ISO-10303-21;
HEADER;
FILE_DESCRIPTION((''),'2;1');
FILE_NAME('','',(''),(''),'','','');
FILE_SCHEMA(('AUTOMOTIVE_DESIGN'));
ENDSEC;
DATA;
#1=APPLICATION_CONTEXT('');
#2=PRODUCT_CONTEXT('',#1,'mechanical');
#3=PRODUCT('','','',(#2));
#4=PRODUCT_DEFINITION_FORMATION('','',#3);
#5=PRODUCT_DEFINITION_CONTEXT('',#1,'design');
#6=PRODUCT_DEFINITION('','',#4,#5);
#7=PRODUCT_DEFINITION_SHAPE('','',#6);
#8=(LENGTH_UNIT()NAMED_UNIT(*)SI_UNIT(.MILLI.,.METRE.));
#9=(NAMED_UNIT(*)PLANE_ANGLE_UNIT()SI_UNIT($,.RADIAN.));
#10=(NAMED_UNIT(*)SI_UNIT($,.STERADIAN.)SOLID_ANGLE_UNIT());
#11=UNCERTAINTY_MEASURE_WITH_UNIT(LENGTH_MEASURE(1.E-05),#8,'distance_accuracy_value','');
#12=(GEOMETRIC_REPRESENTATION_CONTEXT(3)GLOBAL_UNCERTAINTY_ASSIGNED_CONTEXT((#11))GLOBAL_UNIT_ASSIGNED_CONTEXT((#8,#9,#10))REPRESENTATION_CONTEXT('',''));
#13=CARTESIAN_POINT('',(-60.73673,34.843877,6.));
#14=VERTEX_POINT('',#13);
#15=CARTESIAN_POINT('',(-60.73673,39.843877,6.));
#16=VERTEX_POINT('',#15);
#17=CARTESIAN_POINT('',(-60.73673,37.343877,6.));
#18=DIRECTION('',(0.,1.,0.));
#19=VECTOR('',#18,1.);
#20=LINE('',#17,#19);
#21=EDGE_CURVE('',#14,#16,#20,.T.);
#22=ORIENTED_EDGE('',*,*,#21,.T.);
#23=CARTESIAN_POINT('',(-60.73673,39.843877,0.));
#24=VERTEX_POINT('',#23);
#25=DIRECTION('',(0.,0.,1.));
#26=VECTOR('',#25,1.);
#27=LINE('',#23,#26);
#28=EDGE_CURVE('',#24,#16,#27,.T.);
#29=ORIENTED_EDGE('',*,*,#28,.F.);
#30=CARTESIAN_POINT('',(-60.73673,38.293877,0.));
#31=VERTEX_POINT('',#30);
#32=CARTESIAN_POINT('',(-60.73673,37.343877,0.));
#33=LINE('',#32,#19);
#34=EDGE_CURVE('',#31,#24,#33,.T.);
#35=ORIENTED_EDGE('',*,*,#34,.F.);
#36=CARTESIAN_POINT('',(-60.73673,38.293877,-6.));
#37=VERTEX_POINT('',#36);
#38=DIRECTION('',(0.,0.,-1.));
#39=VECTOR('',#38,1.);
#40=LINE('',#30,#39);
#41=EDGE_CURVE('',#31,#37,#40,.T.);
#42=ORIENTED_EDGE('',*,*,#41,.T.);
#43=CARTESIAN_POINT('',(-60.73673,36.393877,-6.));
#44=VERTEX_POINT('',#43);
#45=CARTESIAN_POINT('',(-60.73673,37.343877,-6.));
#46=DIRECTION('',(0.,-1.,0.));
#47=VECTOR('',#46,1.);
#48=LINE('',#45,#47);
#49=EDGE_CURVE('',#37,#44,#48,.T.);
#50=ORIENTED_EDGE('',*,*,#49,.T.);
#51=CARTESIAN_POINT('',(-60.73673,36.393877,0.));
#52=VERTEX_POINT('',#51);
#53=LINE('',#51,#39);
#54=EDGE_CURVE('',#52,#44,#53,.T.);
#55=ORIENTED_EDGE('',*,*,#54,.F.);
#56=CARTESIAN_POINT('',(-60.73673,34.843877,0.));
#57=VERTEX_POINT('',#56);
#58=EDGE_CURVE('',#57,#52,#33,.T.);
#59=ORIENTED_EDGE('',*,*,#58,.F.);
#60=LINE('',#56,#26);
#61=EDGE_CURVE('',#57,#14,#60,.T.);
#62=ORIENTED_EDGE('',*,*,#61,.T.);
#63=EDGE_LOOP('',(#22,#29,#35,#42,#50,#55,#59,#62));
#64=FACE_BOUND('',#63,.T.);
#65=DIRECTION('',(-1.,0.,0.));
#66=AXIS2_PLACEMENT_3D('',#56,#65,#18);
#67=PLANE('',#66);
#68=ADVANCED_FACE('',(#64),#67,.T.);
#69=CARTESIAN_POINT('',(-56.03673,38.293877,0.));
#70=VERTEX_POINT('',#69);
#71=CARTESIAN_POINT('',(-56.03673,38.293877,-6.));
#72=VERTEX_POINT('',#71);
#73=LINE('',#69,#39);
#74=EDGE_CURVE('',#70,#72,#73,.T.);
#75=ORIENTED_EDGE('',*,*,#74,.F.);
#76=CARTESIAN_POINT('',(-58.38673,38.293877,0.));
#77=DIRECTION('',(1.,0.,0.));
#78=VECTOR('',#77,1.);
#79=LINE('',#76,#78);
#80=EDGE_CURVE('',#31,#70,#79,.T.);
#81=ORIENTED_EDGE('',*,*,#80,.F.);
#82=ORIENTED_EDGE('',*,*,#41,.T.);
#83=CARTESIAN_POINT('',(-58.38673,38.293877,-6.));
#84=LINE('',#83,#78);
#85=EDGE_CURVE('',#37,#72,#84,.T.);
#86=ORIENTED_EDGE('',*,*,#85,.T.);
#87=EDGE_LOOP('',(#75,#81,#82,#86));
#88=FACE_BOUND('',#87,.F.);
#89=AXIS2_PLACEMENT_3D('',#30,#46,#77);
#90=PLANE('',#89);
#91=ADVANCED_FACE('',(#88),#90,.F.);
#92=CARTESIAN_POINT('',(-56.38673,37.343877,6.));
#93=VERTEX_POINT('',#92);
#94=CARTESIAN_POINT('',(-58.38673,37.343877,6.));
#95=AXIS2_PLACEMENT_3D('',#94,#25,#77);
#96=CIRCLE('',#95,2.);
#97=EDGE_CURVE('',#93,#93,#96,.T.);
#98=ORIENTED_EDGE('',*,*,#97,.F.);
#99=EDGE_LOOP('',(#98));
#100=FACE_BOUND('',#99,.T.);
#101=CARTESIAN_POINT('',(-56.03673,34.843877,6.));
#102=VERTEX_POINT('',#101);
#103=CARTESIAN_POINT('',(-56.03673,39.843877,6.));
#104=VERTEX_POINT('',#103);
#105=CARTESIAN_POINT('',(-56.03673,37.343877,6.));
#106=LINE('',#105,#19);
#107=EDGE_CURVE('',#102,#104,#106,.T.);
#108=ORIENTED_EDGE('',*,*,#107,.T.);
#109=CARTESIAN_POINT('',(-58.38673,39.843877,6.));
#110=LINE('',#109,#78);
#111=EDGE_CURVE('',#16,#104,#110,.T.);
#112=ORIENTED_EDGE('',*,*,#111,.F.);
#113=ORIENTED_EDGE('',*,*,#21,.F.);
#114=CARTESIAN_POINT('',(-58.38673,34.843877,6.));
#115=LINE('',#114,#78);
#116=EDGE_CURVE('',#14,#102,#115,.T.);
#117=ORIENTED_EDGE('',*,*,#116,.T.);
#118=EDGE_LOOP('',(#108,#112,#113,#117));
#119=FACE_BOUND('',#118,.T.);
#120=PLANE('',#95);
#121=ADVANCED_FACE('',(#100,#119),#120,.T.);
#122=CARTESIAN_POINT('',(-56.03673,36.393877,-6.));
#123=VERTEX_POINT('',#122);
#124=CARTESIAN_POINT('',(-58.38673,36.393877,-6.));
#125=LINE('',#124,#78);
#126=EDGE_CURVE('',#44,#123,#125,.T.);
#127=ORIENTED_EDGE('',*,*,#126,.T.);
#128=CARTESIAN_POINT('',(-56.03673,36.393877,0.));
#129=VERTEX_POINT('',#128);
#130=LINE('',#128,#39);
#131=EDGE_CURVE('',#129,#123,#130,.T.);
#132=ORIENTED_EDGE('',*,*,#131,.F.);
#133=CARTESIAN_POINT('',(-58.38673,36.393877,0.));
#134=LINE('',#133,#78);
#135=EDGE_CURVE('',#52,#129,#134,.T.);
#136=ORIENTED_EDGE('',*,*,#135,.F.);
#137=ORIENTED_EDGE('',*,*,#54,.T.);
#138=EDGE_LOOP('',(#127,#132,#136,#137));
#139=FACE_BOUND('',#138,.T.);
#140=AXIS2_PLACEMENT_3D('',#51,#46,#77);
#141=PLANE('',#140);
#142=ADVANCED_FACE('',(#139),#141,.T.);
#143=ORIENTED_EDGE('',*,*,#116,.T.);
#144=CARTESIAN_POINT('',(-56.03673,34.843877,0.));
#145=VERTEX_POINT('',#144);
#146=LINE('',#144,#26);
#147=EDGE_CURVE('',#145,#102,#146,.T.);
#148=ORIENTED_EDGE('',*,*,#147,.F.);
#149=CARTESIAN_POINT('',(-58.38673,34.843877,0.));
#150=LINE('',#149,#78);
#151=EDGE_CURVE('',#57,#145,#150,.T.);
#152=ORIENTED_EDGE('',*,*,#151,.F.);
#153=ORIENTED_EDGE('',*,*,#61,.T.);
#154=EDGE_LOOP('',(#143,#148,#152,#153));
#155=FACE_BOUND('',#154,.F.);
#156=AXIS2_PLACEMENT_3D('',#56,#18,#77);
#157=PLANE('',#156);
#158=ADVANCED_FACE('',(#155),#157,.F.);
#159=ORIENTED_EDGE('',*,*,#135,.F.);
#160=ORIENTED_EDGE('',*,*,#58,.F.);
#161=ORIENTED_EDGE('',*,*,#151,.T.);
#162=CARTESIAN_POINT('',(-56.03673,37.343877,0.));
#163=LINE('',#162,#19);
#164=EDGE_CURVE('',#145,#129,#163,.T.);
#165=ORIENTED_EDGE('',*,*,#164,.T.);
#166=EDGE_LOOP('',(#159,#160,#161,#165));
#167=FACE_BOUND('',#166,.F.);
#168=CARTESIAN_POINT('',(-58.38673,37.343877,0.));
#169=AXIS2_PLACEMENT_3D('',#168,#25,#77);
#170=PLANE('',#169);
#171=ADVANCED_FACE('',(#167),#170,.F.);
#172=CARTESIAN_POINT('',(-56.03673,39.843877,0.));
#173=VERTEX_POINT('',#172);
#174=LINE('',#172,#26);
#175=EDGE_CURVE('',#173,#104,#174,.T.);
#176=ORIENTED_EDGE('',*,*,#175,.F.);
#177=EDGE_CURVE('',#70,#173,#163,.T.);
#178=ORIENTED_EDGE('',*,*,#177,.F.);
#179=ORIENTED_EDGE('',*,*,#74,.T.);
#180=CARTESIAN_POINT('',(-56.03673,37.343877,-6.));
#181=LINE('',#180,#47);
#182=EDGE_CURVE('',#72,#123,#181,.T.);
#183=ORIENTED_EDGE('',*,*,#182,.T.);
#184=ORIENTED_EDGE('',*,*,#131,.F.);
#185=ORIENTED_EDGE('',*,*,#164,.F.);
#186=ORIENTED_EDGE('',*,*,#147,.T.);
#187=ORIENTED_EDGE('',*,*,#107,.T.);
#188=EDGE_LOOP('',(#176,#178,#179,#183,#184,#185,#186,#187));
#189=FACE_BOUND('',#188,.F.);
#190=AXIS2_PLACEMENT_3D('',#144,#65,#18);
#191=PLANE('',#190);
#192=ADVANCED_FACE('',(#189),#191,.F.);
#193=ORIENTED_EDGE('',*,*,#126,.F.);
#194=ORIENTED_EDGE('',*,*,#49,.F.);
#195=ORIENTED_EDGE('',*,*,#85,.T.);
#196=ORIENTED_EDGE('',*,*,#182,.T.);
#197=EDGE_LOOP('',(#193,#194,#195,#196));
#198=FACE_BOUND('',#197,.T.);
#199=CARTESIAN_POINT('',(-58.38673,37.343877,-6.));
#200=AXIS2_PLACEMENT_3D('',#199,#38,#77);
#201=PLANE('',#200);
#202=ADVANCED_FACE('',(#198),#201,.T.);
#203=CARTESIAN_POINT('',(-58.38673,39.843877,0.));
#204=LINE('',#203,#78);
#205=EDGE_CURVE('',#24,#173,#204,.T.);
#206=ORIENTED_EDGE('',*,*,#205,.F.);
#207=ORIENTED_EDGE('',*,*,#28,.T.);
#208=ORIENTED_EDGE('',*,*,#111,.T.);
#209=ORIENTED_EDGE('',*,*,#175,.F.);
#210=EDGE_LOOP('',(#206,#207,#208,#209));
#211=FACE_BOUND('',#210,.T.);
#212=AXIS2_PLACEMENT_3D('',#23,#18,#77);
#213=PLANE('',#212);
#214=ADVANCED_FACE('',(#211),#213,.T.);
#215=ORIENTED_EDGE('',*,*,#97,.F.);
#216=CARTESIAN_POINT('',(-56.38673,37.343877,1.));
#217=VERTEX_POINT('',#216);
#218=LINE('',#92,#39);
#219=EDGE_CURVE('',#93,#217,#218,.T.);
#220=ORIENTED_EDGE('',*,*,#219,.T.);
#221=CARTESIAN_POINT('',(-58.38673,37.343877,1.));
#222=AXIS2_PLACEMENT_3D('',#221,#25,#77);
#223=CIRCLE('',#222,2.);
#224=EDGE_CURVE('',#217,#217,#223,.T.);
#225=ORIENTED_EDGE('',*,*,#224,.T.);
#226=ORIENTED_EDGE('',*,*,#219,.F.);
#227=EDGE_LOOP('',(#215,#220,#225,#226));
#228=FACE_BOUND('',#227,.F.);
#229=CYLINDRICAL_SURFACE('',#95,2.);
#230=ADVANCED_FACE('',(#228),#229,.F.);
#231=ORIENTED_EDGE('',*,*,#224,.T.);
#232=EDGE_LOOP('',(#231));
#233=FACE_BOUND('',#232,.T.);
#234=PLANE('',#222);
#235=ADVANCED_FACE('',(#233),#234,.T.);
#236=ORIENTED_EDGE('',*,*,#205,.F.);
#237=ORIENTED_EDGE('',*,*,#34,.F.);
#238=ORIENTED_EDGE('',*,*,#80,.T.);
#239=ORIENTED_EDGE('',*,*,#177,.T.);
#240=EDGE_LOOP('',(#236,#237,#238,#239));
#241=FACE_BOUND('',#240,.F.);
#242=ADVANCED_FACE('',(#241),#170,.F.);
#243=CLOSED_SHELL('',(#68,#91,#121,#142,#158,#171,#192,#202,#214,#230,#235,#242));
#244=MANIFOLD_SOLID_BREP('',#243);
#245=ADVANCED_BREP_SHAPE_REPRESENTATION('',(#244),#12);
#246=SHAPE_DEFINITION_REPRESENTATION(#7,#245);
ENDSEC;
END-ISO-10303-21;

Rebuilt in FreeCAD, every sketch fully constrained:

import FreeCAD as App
import Part
import Sketcher


def add_polygon(sketch, points):
    """Adds a closed chain of lines whose ends are joined by coincident constraints."""
    first, n = sketch.GeometryCount, len(points)
    for a, b in zip(points, points[1:] + points[:1]):
        sketch.addGeometry(Part.LineSegment(App.Vector(*a, 0), App.Vector(*b, 0)), False)
    for i in range(n):
        sketch.addConstraint(Sketcher.Constraint("Coincident", first + i, 2, first + (i + 1) % n, 1))

doc = App.newDocument("Part")
body = doc.addObject("PartDesign::Body", "Body")

sketch1 = body.newObject("Sketcher::SketchObject", "Sketch")
sketch1.AttachmentSupport = (doc.getObject("XY_Plane"), [""])
sketch1.MapMode = "FlatFace"
add_polygon(sketch1, [(-60.7, 39.8), (-60.7, 34.8), (-56, 34.8), (-56, 39.8)])
sketch1.addConstraint(Sketcher.Constraint("Vertical", 0))
sketch1.addConstraint(Sketcher.Constraint("Horizontal", 1))
sketch1.addConstraint(Sketcher.Constraint("Vertical", 2))
sketch1.addConstraint(Sketcher.Constraint("Horizontal", 3))
sketch1.addConstraint(Sketcher.Constraint("DistanceY", 0, 2, 0, 1, 5.0))
sketch1.addConstraint(Sketcher.Constraint("DistanceX", 1, 1, 1, 2, 4.7))
sketch1.addConstraint(Sketcher.Constraint("DistanceX", 0, 2, -1, 1, 60.73673))
sketch1.addConstraint(Sketcher.Constraint("DistanceY", -1, 1, 0, 2, 34.843877))
pad1 = body.newObject("PartDesign::Pad", "Pad")
pad1.Profile = sketch1
pad1.Length = 6

sketch2 = body.newObject("Sketcher::SketchObject", "Sketch001")
sketch2.AttachmentSupport = (doc.getObject("XY_Plane"), [""])
sketch2.MapMode = "FlatFace"
sketch2.AttachmentOffset = App.Placement(App.Vector(0, 0, 6), App.Rotation())
sketch2.addGeometry(Part.Circle(App.Vector(-58.4, 37.3, 0), App.Vector(0, 0, 1), 2), False)
sketch2.addConstraint(Sketcher.Constraint("Diameter", 0, 4.0))
sketch2.addConstraint(Sketcher.Constraint("DistanceX", 0, 3, -1, 1, 58.38673))
sketch2.addConstraint(Sketcher.Constraint("DistanceY", -1, 1, 0, 3, 37.343877))
pocket1 = body.newObject("PartDesign::Pocket", "Pocket")
pocket1.Profile = sketch2
pocket1.Length = 5

sketch3 = body.newObject("Sketcher::SketchObject", "Sketch002")
sketch3.AttachmentSupport = (doc.getObject("XY_Plane"), [""])
sketch3.MapMode = "FlatFace"
add_polygon(sketch3, [(-60.7, 36.4), (-60.7, 38.3), (-56, 38.3), (-56, 36.4)])
sketch3.addConstraint(Sketcher.Constraint("Vertical", 0))
sketch3.addConstraint(Sketcher.Constraint("Horizontal", 1))
sketch3.addConstraint(Sketcher.Constraint("Vertical", 2))
sketch3.addConstraint(Sketcher.Constraint("Horizontal", 3))
sketch3.addConstraint(Sketcher.Constraint("DistanceX", 1, 1, 1, 2, 4.7))
sketch3.addConstraint(Sketcher.Constraint("DistanceY", 0, 1, 0, 2, 1.9))
sketch3.addConstraint(Sketcher.Constraint("DistanceX", 0, 2, -1, 1, 60.73673))
sketch3.addConstraint(Sketcher.Constraint("DistanceY", -1, 1, 0, 2, 38.293877))
pad2 = body.newObject("PartDesign::Pad", "Pad001")
pad2.Profile = sketch3
pad2.Length = 6
pad2.Reversed = True

doc.recompute()
